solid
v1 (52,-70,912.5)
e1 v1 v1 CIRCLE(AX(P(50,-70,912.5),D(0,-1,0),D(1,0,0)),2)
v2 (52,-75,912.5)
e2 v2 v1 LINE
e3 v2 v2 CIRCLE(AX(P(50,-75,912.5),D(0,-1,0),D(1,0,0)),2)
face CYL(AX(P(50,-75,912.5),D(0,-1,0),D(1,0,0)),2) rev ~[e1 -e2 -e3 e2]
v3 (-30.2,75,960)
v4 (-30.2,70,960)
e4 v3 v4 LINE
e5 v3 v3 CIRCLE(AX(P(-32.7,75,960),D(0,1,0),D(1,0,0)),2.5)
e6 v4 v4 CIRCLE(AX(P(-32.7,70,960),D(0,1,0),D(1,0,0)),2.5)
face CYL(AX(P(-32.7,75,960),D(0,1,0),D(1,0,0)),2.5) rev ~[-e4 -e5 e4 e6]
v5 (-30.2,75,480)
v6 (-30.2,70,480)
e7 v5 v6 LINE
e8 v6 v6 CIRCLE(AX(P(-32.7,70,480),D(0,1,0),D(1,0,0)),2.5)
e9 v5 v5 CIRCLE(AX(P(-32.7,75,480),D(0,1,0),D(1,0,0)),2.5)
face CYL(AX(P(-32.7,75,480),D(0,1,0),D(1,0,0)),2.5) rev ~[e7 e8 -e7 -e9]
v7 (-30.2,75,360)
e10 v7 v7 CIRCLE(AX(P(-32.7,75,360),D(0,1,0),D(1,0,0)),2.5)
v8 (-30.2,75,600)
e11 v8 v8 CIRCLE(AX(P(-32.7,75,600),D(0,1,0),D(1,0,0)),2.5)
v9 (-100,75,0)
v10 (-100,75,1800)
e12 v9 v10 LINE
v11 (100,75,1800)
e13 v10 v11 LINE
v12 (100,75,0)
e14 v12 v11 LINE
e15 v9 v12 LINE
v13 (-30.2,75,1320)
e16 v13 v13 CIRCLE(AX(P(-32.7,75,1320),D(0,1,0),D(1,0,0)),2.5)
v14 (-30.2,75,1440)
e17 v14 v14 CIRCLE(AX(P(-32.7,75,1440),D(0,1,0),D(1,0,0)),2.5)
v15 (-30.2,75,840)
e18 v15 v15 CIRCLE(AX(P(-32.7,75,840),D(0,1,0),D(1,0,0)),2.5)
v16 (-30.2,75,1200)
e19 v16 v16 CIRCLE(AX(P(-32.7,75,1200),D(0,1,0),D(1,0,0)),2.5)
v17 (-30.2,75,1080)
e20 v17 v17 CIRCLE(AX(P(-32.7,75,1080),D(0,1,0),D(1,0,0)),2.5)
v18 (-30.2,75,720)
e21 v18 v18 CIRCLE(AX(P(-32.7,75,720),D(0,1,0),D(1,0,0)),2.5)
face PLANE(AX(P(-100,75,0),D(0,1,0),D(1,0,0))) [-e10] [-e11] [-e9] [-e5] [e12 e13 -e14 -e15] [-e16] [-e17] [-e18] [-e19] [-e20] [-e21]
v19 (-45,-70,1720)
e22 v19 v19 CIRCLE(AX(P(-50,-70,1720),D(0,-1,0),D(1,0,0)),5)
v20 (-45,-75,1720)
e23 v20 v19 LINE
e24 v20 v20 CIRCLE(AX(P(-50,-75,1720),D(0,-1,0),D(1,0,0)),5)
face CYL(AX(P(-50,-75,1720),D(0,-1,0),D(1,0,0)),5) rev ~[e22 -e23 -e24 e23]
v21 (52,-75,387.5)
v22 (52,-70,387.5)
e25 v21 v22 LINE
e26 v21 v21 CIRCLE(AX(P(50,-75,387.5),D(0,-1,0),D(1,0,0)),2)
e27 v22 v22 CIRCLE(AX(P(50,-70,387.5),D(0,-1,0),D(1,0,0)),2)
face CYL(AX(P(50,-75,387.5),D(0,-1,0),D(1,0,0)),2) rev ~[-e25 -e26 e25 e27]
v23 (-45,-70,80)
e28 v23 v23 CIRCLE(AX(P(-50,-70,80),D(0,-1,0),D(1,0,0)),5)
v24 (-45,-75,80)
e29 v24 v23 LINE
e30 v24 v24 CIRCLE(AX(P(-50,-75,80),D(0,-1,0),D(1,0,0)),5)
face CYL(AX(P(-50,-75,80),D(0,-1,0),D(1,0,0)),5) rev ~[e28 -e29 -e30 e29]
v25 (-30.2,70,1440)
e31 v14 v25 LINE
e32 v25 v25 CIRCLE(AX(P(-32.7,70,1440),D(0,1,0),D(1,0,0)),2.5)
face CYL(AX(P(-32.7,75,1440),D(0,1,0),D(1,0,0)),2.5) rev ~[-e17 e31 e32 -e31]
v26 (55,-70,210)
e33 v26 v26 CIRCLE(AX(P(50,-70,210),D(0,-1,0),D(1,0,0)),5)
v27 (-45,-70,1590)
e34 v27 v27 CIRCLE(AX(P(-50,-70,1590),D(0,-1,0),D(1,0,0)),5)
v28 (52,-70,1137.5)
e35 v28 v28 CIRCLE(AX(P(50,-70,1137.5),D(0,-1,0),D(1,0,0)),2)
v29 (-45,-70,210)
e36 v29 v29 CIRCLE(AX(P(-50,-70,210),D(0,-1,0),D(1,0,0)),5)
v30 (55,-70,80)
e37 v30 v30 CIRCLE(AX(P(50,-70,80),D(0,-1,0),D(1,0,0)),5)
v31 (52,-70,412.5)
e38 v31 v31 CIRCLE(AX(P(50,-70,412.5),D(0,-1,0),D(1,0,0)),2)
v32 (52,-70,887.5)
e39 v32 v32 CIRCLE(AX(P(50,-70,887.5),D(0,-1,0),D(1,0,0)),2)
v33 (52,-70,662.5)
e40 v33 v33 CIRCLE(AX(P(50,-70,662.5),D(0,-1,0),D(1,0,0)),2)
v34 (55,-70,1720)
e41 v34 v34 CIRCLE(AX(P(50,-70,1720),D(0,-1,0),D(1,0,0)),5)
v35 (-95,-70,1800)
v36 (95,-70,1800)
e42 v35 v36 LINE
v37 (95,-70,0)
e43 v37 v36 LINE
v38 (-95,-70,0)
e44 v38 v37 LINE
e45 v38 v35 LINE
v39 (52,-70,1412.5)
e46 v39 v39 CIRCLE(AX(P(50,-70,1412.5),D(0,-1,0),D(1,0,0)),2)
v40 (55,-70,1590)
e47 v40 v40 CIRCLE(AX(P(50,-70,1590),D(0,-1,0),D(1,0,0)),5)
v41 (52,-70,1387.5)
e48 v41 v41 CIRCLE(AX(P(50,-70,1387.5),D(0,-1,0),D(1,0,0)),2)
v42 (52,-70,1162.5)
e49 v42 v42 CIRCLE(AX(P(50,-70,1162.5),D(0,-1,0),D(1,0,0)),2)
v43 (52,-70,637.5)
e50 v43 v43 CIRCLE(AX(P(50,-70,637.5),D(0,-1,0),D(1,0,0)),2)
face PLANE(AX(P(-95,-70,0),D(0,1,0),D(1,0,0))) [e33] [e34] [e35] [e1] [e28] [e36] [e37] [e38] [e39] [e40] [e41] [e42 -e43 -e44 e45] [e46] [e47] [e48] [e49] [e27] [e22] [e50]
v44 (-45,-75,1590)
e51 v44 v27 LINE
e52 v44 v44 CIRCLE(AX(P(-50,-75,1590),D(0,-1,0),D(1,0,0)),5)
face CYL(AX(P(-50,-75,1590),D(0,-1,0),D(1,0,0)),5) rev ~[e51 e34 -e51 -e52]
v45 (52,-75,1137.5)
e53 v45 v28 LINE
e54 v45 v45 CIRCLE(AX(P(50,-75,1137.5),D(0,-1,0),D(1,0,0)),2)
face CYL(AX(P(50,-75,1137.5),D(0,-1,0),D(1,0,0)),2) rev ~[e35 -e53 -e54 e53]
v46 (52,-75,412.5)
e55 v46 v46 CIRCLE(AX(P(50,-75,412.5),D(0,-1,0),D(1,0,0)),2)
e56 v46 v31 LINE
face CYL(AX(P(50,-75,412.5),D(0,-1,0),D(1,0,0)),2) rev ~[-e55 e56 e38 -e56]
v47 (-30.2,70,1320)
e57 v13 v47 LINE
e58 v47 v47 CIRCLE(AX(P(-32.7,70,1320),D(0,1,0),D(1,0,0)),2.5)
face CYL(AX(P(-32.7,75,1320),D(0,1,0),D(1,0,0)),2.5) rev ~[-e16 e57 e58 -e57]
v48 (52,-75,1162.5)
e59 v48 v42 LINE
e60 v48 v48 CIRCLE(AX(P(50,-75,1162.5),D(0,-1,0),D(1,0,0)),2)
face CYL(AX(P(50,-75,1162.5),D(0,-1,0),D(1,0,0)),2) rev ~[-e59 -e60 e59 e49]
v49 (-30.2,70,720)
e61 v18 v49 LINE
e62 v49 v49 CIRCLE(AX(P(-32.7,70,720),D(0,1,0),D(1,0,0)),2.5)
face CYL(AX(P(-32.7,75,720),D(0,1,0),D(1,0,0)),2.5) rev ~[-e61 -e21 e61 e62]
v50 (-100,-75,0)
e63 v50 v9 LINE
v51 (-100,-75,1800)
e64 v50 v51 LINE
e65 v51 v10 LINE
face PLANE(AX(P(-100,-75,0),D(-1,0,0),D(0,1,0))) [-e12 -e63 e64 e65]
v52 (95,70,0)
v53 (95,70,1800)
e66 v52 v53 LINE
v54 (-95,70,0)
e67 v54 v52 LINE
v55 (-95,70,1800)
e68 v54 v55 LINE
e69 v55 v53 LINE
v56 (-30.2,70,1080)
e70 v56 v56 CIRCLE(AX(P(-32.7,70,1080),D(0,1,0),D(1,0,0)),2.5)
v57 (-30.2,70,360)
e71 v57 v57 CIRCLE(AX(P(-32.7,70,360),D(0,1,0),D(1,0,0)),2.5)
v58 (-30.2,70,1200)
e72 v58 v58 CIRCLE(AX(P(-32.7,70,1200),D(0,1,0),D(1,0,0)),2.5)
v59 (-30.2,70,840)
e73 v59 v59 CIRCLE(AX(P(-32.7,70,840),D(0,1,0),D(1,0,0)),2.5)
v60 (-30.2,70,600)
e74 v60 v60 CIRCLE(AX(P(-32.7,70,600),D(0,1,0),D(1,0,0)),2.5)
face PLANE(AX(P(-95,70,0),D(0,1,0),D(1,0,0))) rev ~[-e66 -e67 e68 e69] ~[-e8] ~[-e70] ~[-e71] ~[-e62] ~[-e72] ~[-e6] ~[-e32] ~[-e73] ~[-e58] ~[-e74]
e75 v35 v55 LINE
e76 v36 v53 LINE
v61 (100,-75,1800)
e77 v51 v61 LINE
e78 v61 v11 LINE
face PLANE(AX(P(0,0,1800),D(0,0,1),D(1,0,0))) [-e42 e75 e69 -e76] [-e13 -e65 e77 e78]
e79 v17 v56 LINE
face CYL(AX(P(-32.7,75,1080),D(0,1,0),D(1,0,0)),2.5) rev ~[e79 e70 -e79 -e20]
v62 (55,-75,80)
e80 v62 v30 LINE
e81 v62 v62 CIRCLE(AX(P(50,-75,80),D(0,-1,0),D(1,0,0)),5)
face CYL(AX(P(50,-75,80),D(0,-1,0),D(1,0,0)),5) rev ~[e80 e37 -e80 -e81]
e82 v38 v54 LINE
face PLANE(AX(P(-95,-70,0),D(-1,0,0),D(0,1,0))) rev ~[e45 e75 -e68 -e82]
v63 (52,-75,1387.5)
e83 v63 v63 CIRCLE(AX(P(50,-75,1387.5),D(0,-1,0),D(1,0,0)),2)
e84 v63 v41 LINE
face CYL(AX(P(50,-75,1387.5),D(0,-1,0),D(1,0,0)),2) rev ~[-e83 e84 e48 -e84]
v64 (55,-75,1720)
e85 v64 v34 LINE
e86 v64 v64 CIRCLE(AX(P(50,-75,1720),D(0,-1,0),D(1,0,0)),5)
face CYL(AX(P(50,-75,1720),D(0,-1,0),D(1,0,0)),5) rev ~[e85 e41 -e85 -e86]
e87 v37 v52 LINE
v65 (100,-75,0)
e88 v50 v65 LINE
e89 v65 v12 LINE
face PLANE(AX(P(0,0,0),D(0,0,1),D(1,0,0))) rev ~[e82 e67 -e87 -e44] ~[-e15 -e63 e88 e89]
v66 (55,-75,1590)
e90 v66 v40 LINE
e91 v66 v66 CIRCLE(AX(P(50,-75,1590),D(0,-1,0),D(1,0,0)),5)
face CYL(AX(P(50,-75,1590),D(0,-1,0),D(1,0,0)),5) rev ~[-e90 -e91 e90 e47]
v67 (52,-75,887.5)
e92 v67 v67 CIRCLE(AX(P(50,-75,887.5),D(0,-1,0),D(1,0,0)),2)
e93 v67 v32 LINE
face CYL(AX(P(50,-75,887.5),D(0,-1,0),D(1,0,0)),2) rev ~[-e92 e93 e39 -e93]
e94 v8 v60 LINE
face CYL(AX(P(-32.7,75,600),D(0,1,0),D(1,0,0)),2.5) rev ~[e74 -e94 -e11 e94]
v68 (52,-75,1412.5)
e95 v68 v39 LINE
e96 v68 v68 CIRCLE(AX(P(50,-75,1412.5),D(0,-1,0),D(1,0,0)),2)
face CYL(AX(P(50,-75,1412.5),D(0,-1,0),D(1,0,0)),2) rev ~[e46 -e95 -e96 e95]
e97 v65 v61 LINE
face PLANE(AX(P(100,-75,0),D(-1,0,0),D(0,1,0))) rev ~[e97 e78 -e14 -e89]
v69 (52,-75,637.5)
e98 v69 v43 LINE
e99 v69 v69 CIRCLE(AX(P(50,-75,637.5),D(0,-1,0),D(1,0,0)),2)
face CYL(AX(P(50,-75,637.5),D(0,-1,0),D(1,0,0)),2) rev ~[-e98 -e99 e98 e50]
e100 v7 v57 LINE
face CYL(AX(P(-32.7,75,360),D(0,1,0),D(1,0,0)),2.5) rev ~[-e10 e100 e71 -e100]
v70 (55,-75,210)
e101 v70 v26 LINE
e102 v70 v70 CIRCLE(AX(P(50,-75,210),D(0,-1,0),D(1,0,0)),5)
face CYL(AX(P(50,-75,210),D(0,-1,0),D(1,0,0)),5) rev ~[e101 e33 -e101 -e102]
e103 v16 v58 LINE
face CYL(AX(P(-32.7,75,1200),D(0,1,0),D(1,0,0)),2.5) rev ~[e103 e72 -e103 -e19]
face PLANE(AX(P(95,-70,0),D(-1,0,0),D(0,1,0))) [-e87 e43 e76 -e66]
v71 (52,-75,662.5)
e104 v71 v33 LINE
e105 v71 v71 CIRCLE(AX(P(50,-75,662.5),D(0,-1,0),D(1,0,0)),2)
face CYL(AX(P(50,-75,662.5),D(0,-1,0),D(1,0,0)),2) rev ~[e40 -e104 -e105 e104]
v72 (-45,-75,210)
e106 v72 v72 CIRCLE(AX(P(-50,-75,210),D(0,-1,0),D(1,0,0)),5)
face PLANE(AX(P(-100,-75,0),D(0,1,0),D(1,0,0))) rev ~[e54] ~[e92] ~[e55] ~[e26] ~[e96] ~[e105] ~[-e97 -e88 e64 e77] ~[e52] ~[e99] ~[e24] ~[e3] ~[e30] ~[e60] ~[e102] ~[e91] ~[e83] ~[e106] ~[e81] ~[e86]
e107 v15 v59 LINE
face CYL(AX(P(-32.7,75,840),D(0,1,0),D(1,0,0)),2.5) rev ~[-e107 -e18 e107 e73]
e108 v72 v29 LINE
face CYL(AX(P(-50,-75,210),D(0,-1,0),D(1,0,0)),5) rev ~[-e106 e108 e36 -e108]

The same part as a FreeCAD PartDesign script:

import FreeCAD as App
import Part
import Sketcher
Q = App.Units.Quantity

doc = App.newDocument("Part")
params = doc.addObject("Spreadsheet::Sheet", "Params")
for row, (alias, value) in enumerate([
    ("sketch1_width", "200 mm"),
    ("sketch1_width2", "190 mm"),
    ("sketch1_height", "150 mm"),
    ("sketch1_height2", "140 mm"),
    ("pad1_length", "1800 mm"),
    ("sketch2_diameter", "5 mm"),
    ("pocket1_length", "10 mm"),
    ("sketch3_diameter", "10 mm"),
    ("sketch3_diameter2", "4 mm"),
    ("pocket2_length", "5 mm"),
], start=1):
    params.set(f"A{row}", alias)
    params.set(f"B{row}", "=" + value)
    params.setAlias(f"B{row}", alias)

body = doc.addObject("PartDesign::Body", "Body")

sketch1 = body.newObject("Sketcher::SketchObject", "Sketch")
sketch1.AttachmentSupport = (doc.getObject("XY_Plane"), [""])
sketch1.MapMode = "FlatFace"
sketch1.addGeometry([
    Part.LineSegment(App.Vector(-100, 75, 0), App.Vector(-100, -75, 0)),
    Part.LineSegment(App.Vector(-100, -75, 0), App.Vector(100, -75, 0)),
    Part.LineSegment(App.Vector(100, -75, 0), App.Vector(100, 75, 0)),
    Part.LineSegment(App.Vector(100, 75, 0), App.Vector(-100, 75, 0)),
    Part.LineSegment(App.Vector(95, -70, 0), App.Vector(-95, -70, 0)),
    Part.LineSegment(App.Vector(-95, -70, 0), App.Vector(-95, 70, 0)),
    Part.LineSegment(App.Vector(-95, 70, 0), App.Vector(95, 70, 0)),
    Part.LineSegment(App.Vector(95, 70, 0), App.Vector(95, -70, 0)),
], False)
sketch1.addConstraint([
    Sketcher.Constraint("Coincident", 0, 2, 1, 1),
    Sketcher.Constraint("Coincident", 1, 2, 2, 1),
    Sketcher.Constraint("Coincident", 2, 2, 3, 1),
    Sketcher.Constraint("Coincident", 3, 2, 0, 1),
    Sketcher.Constraint("Coincident", 4, 2, 5, 1),
    Sketcher.Constraint("Coincident", 5, 2, 6, 1),
    Sketcher.Constraint("Coincident", 6, 2, 7, 1),
    Sketcher.Constraint("Coincident", 7, 2, 4, 1),
    Sketcher.Constraint("Vertical", 0),
    Sketcher.Constraint("Horizontal", 1),
    Sketcher.Constraint("Vertical", 2),
    Sketcher.Constraint("Horizontal", 3),
    Sketcher.Constraint("Horizontal", 4),
    Sketcher.Constraint("Vertical", 5),
    Sketcher.Constraint("Horizontal", 6),
    Sketcher.Constraint("Vertical", 7),
    Sketcher.Constraint("Symmetric", 0, 2, 2, 2, -1, 1),
    Sketcher.Constraint("Symmetric", 4, 2, 6, 2, -1, 1),
    Sketcher.Constraint("DistanceX", 1, 1, 1, 2, Q("200 mm")),
    Sketcher.Constraint("DistanceX", 4, 2, 4, 1, Q("190 mm")),
    Sketcher.Constraint("DistanceY", 0, 2, 0, 1, Q("150 mm")),
    Sketcher.Constraint("DistanceY", 5, 1, 5, 2, Q("140 mm")),
])
sketch1.setExpression("Constraints[18]", "Params.sketch1_width")
sketch1.setExpression("Constraints[19]", "Params.sketch1_width2")
sketch1.setExpression("Constraints[20]", "Params.sketch1_height")
sketch1.setExpression("Constraints[21]", "Params.sketch1_height2")
pad1 = body.newObject("PartDesign::Pad", "Pad")
pad1.Profile = sketch1
pad1.setExpression("Length", "Params.pad1_length")

sketch2 = body.newObject("Sketcher::SketchObject", "Sketch001")
sketch2.AttachmentSupport = (doc.getObject("XZ_Plane"), [""])
sketch2.MapMode = "FlatFace"
sketch2.AttachmentOffset = App.Placement(App.Vector(0, 0, -75), App.Rotation())
sketch2.addGeometry([
    Part.Circle(App.Vector(-32.7, 360, 0), App.Vector(0, 0, 1), 2.5),
    Part.Circle(App.Vector(-32.7, 480, 0), App.Vector(0, 0, 1), 2.5),
    Part.Circle(App.Vector(-32.7, 600, 0), App.Vector(0, 0, 1), 2.5),
    Part.Circle(App.Vector(-32.7, 720, 0), App.Vector(0, 0, 1), 2.5),
    Part.Circle(App.Vector(-32.7, 840, 0), App.Vector(0, 0, 1), 2.5),
    Part.Circle(App.Vector(-32.7, 960, 0), App.Vector(0, 0, 1), 2.5),
    Part.Circle(App.Vector(-32.7, 1080, 0), App.Vector(0, 0, 1), 2.5),
    Part.Circle(App.Vector(-32.7, 1200, 0), App.Vector(0, 0, 1), 2.5),
    Part.Circle(App.Vector(-32.7, 1320, 0), App.Vector(0, 0, 1), 2.5),
    Part.Circle(App.Vector(-32.7, 1440, 0), App.Vector(0, 0, 1), 2.5),
], False)
sketch2.addConstraint([
    Sketcher.Constraint("Equal", 0, 1),
    Sketcher.Constraint("Equal", 1, 2),
    Sketcher.Constraint("Equal", 2, 3),
    Sketcher.Constraint("Equal", 3, 4),
    Sketcher.Constraint("Equal", 4, 5),
    Sketcher.Constraint("Equal", 5, 6),
    Sketcher.Constraint("Equal", 6, 7),
    Sketcher.Constraint("Equal", 7, 8),
    Sketcher.Constraint("Equal", 8, 9),
    Sketcher.Constraint("Vertical", 0, 3, 1, 3),
    Sketcher.Constraint("Vertical", 1, 3, 2, 3),
    Sketcher.Constraint("Vertical", 2, 3, 3, 3),
    Sketcher.Constraint("Vertical", 3, 3, 4, 3),
    Sketcher.Constraint("Vertical", 4, 3, 5, 3),
    Sketcher.Constraint("Vertical", 5, 3, 6, 3),
    Sketcher.Constraint("Vertical", 6, 3, 7, 3),
    Sketcher.Constraint("Vertical", 7, 3, 8, 3),
    Sketcher.Constraint("Vertical", 8, 3, 9, 3),
    Sketcher.Constraint("Diameter", 0, Q("5 mm")),
    Sketcher.Constraint("DistanceY", -1, 1, 0, 3, Q("360 mm")),
    Sketcher.Constraint("DistanceY", -1, 1, 1, 3, Q("480 mm")),
    Sketcher.Constraint("DistanceY", -1, 1, 2, 3, Q("600 mm")),
    Sketcher.Constraint("DistanceY", -1, 1, 3, 3, Q("720 mm")),
    Sketcher.Constraint("DistanceY", -1, 1, 4, 3, Q("840 mm")),
    Sketcher.Constraint("DistanceY", -1, 1, 5, 3, Q("960 mm")),
    Sketcher.Constraint("DistanceY", -1, 1, 6, 3, Q("1080 mm")),
    Sketcher.Constraint("DistanceY", -1, 1, 7, 3, Q("1200 mm")),
    Sketcher.Constraint("DistanceY", -1, 1, 8, 3, Q("1320 mm")),
    Sketcher.Constraint("DistanceY", -1, 1, 9, 3, Q("1440 mm")),
    Sketcher.Constraint("DistanceX", 0, 3, -1, 1, Q("32.7 mm")),
])
sketch2.setExpression("Constraints[18]", "Params.sketch2_diameter")
pocket1 = body.newObject("PartDesign::Pocket", "Pocket")
pocket1.Profile = sketch2
pocket1.setExpression("Length", "Params.pocket1_length")
pocket1.Reversed = True

sketch3 = body.newObject("Sketcher::SketchObject", "Sketch002")
sketch3.AttachmentSupport = (doc.getObject("XZ_Plane"), [""])
sketch3.MapMode = "FlatFace"
sketch3.AttachmentOffset = App.Placement(App.Vector(0, 0, 75), App.Rotation())
sketch3.addGeometry([
    Part.Circle(App.Vector(-50, 1720, 0), App.Vector(0, 0, 1), 5),
    Part.Circle(App.Vector(50, 1720, 0), App.Vector(0, 0, 1), 5),
    Part.Circle(App.Vector(50, 1590, 0), App.Vector(0, 0, 1), 5),
    Part.Circle(App.Vector(-50, 1590, 0), App.Vector(0, 0, 1), 5),
    Part.Circle(App.Vector(50, 1412.5, 0), App.Vector(0, 0, 1), 2),
    Part.Circle(App.Vector(50, 1387.5, 0), App.Vector(0, 0, 1), 2),
    Part.Circle(App.Vector(50, 1162.5, 0), App.Vector(0, 0, 1), 2),
    Part.Circle(App.Vector(50, 1137.5, 0), App.Vector(0, 0, 1), 2),
    Part.Circle(App.Vector(50, 912.5, 0), App.Vector(0, 0, 1), 2),
    Part.Circle(App.Vector(50, 887.5, 0), App.Vector(0, 0, 1), 2),
    Part.Circle(App.Vector(50, 662.5, 0), App.Vector(0, 0, 1), 2),
    Part.Circle(App.Vector(50, 637.5, 0), App.Vector(0, 0, 1), 2),
    Part.Circle(App.Vector(50, 412.5, 0), App.Vector(0, 0, 1), 2),
    Part.Circle(App.Vector(50, 387.5, 0), App.Vector(0, 0, 1), 2),
    Part.Circle(App.Vector(-50, 210, 0), App.Vector(0, 0, 1), 5),
    Part.Circle(App.Vector(50, 210, 0), App.Vector(0, 0, 1), 5),
    Part.Circle(App.Vector(50, 80, 0), App.Vector(0, 0, 1), 5),
    Part.Circle(App.Vector(-50, 80, 0), App.Vector(0, 0, 1), 5),
], False)
sketch3.addConstraint([
    Sketcher.Constraint("Equal", 0, 1),
    Sketcher.Constraint("Equal", 1, 2),
    Sketcher.Constraint("Equal", 2, 3),
    Sketcher.Constraint("Equal", 4, 5),
    Sketcher.Constraint("Equal", 5, 6),
    Sketcher.Constraint("Equal", 6, 7),
    Sketcher.Constraint("Equal", 7, 8),
    Sketcher.Constraint("Equal", 8, 9),
    Sketcher.Constraint("Equal", 9, 10),
    Sketcher.Constraint("Equal", 10, 11),
    Sketcher.Constraint("Equal", 11, 12),
    Sketcher.Constraint("Equal", 12, 13),
    Sketcher.Constraint("Equal", 3, 14),
    Sketcher.Constraint("Equal", 14, 15),
    Sketcher.Constraint("Equal", 15, 16),
    Sketcher.Constraint("Equal", 16, 17),
    Sketcher.Constraint("Symmetric", 0, 3, 1, 3, -2),
    Sketcher.Constraint("Symmetric", 2, 3, 3, 3, -2),
    Sketcher.Constraint("Symmetric", 14, 3, 15, 3, -2),
    Sketcher.Constraint("Symmetric", 16, 3, 17, 3, -2),
    Sketcher.Constraint("Vertical", 1, 3, 2, 3),
    Sketcher.Constraint("Vertical", 2, 3, 4, 3),
    Sketcher.Constraint("Vertical", 4, 3, 5, 3),
    Sketcher.Constraint("Vertical", 5, 3, 6, 3),
    Sketcher.Constraint("Vertical", 6, 3, 7, 3),
    Sketcher.Constraint("Vertical", 7, 3, 8, 3),
    Sketcher.Constraint("Vertical", 8, 3, 9, 3),
    Sketcher.Constraint("Vertical", 9, 3, 10, 3),
    Sketcher.Constraint("Vertical", 10, 3, 11, 3),
    Sketcher.Constraint("Vertical", 11, 3, 12, 3),
    Sketcher.Constraint("Vertical", 12, 3, 13, 3),
    Sketcher.Constraint("Vertical", 3, 3, 14, 3),
    Sketcher.Constraint("Vertical", 15, 3, 16, 3),
    Sketcher.Constraint("Diameter", 0, Q("10 mm")),
    Sketcher.Constraint("Diameter", 4, Q("4 mm")),
    Sketcher.Constraint("DistanceX", 0, 3, -1, 1, Q("50 mm")),
    Sketcher.Constraint("DistanceY", -1, 1, 0, 3, Q("1720 mm")),
    Sketcher.Constraint("DistanceY", -1, 1, 2, 3, Q("1590 mm")),
    Sketcher.Constraint("DistanceY", -1, 1, 14, 3, Q("210 mm")),
    Sketcher.Constraint("DistanceY", -1, 1, 16, 3, Q("80 mm")),
    Sketcher.Constraint("DistanceY", 5, 3, 4, 3, Q("25 mm")),
    Sketcher.Constraint("DistanceY", 6, 3, 5, 3, Q("225 mm")),
    Sketcher.Constraint("DistanceY", 7, 3, 6, 3, Q("25 mm")),
    Sketcher.Constraint("DistanceY", 8, 3, 7, 3, Q("225 mm")),
    Sketcher.Constraint("DistanceY", 9, 3, 8, 3, Q("25 mm")),
    Sketcher.Constraint("DistanceY", 10, 3, 9, 3, Q("225 mm")),
    Sketcher.Constraint("DistanceY", 11, 3, 10, 3, Q("25 mm")),
    Sketcher.Constraint("DistanceY", 12, 3, 11, 3, Q("225 mm")),
    Sketcher.Constraint("DistanceY", 13, 3, 12, 3, Q("25 mm")),
    Sketcher.Constraint("DistanceY", -1, 1, 4, 3, Q("1412.5 mm")),
])
sketch3.setExpression("Constraints[33]", "Params.sketch3_diameter")
sketch3.setExpression("Constraints[34]", "Params.sketch3_diameter2")
pocket2 = body.newObject("PartDesign::Pocket", "Pocket001")
pocket2.Profile = sketch3
pocket2.setExpression("Length", "Params.pocket2_length")

doc.recompute()
